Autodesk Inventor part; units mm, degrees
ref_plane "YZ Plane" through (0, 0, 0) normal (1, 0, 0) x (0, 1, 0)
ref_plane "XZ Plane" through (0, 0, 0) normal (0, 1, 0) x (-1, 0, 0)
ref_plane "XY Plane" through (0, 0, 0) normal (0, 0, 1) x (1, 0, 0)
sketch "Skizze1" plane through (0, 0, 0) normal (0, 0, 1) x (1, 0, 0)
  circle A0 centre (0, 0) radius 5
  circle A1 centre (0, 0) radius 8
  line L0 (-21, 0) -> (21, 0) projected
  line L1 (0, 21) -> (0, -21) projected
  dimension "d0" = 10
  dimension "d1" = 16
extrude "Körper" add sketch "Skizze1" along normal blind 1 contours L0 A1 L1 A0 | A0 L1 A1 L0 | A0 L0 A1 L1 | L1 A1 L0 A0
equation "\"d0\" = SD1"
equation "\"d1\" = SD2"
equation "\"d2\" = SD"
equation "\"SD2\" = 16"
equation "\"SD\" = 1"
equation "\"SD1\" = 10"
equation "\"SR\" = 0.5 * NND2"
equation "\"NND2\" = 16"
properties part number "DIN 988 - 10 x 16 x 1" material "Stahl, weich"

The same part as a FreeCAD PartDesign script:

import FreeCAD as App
import Part
import Sketcher

doc = App.newDocument("Part")
params = doc.addObject("Spreadsheet::Sheet", "Params")
for row, (alias, value) in enumerate([
    ("sketch1_diameter", "16 mm"),
    ("sketch1_diameter2", "10 mm"),
    ("pad1_length", "1 mm"),
], start=1):
    params.set(f"A{row}", alias)
    params.set(f"B{row}", "=" + value)
    params.setAlias(f"B{row}", alias)

body = doc.addObject("PartDesign::Body", "Body")

sketch1 = body.newObject("Sketcher::SketchObject", "Sketch")
sketch1.AttachmentSupport = (doc.getObject("XY_Plane"), [""])
sketch1.MapMode = "FlatFace"
sketch1.addGeometry([
    Part.Circle(App.Vector(0, 0, 0), App.Vector(0, 0, 1), 8),
    Part.Circle(App.Vector(0, 0, 0), App.Vector(0, 0, 1), 5),
], False)
sketch1.addConstraint([
    Sketcher.Constraint("Coincident", 0, 3, -1, 1),
    Sketcher.Constraint("Coincident", 1, 3, -1, 1),
    Sketcher.Constraint("Diameter", 0, 16.0),
    Sketcher.Constraint("Diameter", 1, 10.0),
])
sketch1.setExpression("Constraints[2]", "Params.sketch1_diameter")
sketch1.setExpression("Constraints[3]", "Params.sketch1_diameter2")
pad1 = body.newObject("PartDesign::Pad", "Pad")
pad1.Profile = sketch1
pad1.setExpression("Length", "Params.pad1_length")

doc.recompute()
